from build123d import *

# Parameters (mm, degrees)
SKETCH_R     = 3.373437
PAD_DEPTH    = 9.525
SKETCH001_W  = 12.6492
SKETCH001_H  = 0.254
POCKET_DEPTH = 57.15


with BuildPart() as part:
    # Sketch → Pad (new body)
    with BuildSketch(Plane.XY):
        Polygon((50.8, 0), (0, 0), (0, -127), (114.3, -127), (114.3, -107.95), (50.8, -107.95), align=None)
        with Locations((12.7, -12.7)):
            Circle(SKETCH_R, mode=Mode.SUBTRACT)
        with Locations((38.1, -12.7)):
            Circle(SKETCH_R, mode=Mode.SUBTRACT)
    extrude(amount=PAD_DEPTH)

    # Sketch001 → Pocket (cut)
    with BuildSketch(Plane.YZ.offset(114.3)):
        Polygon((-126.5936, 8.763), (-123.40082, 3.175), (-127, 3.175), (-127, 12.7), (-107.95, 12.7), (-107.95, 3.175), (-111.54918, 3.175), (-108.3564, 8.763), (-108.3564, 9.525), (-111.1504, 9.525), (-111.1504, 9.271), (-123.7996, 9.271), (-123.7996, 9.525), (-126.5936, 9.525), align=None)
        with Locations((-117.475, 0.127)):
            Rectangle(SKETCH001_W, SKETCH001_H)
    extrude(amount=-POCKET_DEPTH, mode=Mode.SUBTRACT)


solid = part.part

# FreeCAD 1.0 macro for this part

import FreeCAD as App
import Part
import Sketcher

V = App.Vector
Q = App.Units.Quantity

doc = App.newDocument("Part")
body = doc.addObject("PartDesign::Body", "Body")

# Sketch on XY plane
sketch1 = body.newObject("Sketcher::SketchObject", "Sketch")
sketch1.AttachmentSupport = (doc.getObject("XY_Plane"), [""])
sketch1.MapMode = "FlatFace"
sketch1.addGeometry(Part.LineSegment(V(50.8, 0, 0), V(0, 0, 0)), False)
sketch1.addGeometry(Part.LineSegment(V(0, 0, 0), V(0, -127, 0)), False)
sketch1.addGeometry(Part.LineSegment(V(0, -127, 0), V(114.3, -127, 0)), False)
sketch1.addGeometry(Part.LineSegment(V(114.3, -127, 0), V(114.3, -107.95, 0)), False)
sketch1.addGeometry(Part.LineSegment(V(114.3, -107.95, 0), V(50.8, -107.95, 0)), False)
sketch1.addGeometry(Part.LineSegment(V(50.8, -107.95, 0), V(50.8, 0, 0)), False)
sketch1.addGeometry(Part.Circle(V(12.7, -12.7, 0), V(0, 0, 1), 3.373437), False)
sketch1.addGeometry(Part.Circle(V(38.1, -12.7, 0), V(0, 0, 1), 3.373437), False)
sketch1.addConstraint(Sketcher.Constraint("Coincident", 0, 2, 1, 1))
sketch1.addConstraint(Sketcher.Constraint("Coincident", 1, 2, 2, 1))
sketch1.addConstraint(Sketcher.Constraint("Coincident", 2, 2, 3, 1))
sketch1.addConstraint(Sketcher.Constraint("Coincident", 3, 2, 4, 1))
sketch1.addConstraint(Sketcher.Constraint("Coincident", 4, 2, 5, 1))
sketch1.addConstraint(Sketcher.Constraint("Coincident", 5, 2, 0, 1))
sketch1.addConstraint(Sketcher.Constraint("Horizontal", 0))
sketch1.addConstraint(Sketcher.Constraint("Vertical", 1))
sketch1.addConstraint(Sketcher.Constraint("Horizontal", 2))
sketch1.addConstraint(Sketcher.Constraint("Vertical", 3))
sketch1.addConstraint(Sketcher.Constraint("Horizontal", 4))
sketch1.addConstraint(Sketcher.Constraint("Vertical", 5))
sketch1.addConstraint(Sketcher.Constraint("Coincident", 0, 2, -1, 1))
sketch1.addConstraint(Sketcher.Constraint("Equal", 6, 7))
sketch1.addConstraint(Sketcher.Constraint("Horizontal", 6, 3, 7, 3))
sketch1.addConstraint(Sketcher.Constraint("DistanceX", 0, 2, 0, 1, Q("2 in")))
sketch1.addConstraint(Sketcher.Constraint("DistanceY", 1, 2, 1, 1, Q("5 in")))
sketch1.addConstraint(Sketcher.Constraint("Diameter", 6, Q("0.265625 in")))
sketch1.addConstraint(Sketcher.Constraint("DistanceX", 2, 1, 2, 2, Q("4.5 in")))
sketch1.addConstraint(Sketcher.Constraint("DistanceX", 6, 3, 7, 3, Q("1 in")))
sketch1.addConstraint(Sketcher.Constraint("DistanceX", 7, 3, 2, 2, Q("3 in")))
sketch1.addConstraint(Sketcher.Constraint("DistanceY", 3, 1, 3, 2, Q("0.75 in")))
sketch1.addConstraint(Sketcher.Constraint("DistanceY", 6, 3, -1, 1, Q("0.5 in")))
pad1 = body.newObject("PartDesign::Pad", "Pad")
pad1.Profile = sketch1
pad1.Length = Q("0.375 in")

# Sketch on YZ plane
sketch2 = body.newObject("Sketcher::SketchObject", "Sketch001")
sketch2.AttachmentSupport = (doc.getObject("YZ_Plane"), [""])
sketch2.MapMode = "FlatFace"
sketch2.AttachmentOffset = App.Placement(V(0, 0, 4.5 * 25.4), App.Rotation())
sketch2.addGeometry(Part.LineSegment(V(-123.40082, 3.175, 0), V(-126.5936, 8.763, 0)), False)
sketch2.addGeometry(Part.LineSegment(V(-126.5936, 8.763, 0), V(-126.5936, 9.525, 0)), False)
sketch2.addGeometry(Part.LineSegment(V(-126.5936, 9.525, 0), V(-123.7996, 9.525, 0)), False)
sketch2.addGeometry(Part.LineSegment(V(-123.7996, 9.525, 0), V(-123.7996, 9.271, 0)), False)
sketch2.addGeometry(Part.LineSegment(V(-123.7996, 9.271, 0), V(-111.1504, 9.271, 0)), False)
sketch2.addGeometry(Part.LineSegment(V(-111.1504, 9.271, 0), V(-111.1504, 9.525, 0)), False)
sketch2.addGeometry(Part.LineSegment(V(-111.1504, 9.525, 0), V(-108.3564, 9.525, 0)), False)
sketch2.addGeometry(Part.LineSegment(V(-108.3564, 9.525, 0), V(-108.3564, 8.763, 0)), False)
sketch2.addGeometry(Part.LineSegment(V(-108.3564, 8.763, 0), V(-111.54918, 3.175, 0)), False)
sketch2.addGeometry(Part.LineSegment(V(-111.54918, 3.175, 0), V(-107.95, 3.175, 0)), False)
sketch2.addGeometry(Part.LineSegment(V(-107.95, 3.175, 0), V(-107.95, 12.7, 0)), False)
sketch2.addGeometry(Part.LineSegment(V(-107.95, 12.7, 0), V(-127, 12.7, 0)), False)
sketch2.addGeometry(Part.LineSegment(V(-127, 12.7, 0), V(-127, 3.175, 0)), False)
sketch2.addGeometry(Part.LineSegment(V(-127, 3.175, 0), V(-123.40082, 3.175, 0)), False)
sketch2.addGeometry(Part.LineSegment(V(-123.7996, 0.254, 0), V(-123.7996, 0, 0)), False)
sketch2.addGeometry(Part.LineSegment(V(-123.7996, 0, 0), V(-111.1504, 0, 0)), False)
sketch2.addGeometry(Part.LineSegment(V(-111.1504, 0, 0), V(-111.1504, 0.254, 0)), False)
sketch2.addGeometry(Part.LineSegment(V(-111.1504, 0.254, 0), V(-123.7996, 0.254, 0)), False)
sketch2.addConstraint(Sketcher.Constraint("Coincident", 0, 2, 1, 1))
sketch2.addConstraint(Sketcher.Constraint("Coincident", 1, 2, 2, 1))
sketch2.addConstraint(Sketcher.Constraint("Coincident", 2, 2, 3, 1))
sketch2.addConstraint(Sketcher.Constraint("Coincident", 3, 2, 4, 1))
sketch2.addConstraint(Sketcher.Constraint("Coincident", 4, 2, 5, 1))
sketch2.addConstraint(Sketcher.Constraint("Coincident", 5, 2, 6, 1))
sketch2.addConstraint(Sketcher.Constraint("Coincident", 6, 2, 7, 1))
sketch2.addConstraint(Sketcher.Constraint("Coincident", 7, 2, 8, 1))
sketch2.addConstraint(Sketcher.Constraint("Coincident", 8, 2, 9, 1))
sketch2.addConstraint(Sketcher.Constraint("Coincident", 9, 2, 10, 1))
sketch2.addConstraint(Sketcher.Constraint("Coincident", 10, 2, 11, 1))
sketch2.addConstraint(Sketcher.Constraint("Coincident", 11, 2, 12, 1))
sketch2.addConstraint(Sketcher.Constraint("Coincident", 12, 2, 13, 1))
sketch2.addConstraint(Sketcher.Constraint("Coincident", 13, 2, 0, 1))
sketch2.addConstraint(Sketcher.Constraint("Coincident", 14, 2, 15, 1))
sketch2.addConstraint(Sketcher.Constraint("Coincident", 15, 2, 16, 1))
sketch2.addConstraint(Sketcher.Constraint("Coincident", 16, 2, 17, 1))
sketch2.addConstraint(Sketcher.Constraint("Coincident", 17, 2, 14, 1))
sketch2.addConstraint(Sketcher.Constraint("Vertical", 1))
sketch2.addConstraint(Sketcher.Constraint("Horizontal", 2))
sketch2.addConstraint(Sketcher.Constraint("Vertical", 3))
sketch2.addConstraint(Sketcher.Constraint("Horizontal", 4))
sketch2.addConstraint(Sketcher.Constraint("Vertical", 5))
sketch2.addConstraint(Sketcher.Constraint("Horizontal", 6))
sketch2.addConstraint(Sketcher.Constraint("Vertical", 7))
sketch2.addConstraint(Sketcher.Constraint("Horizontal", 9))
sketch2.addConstraint(Sketcher.Constraint("Vertical", 10))
sketch2.addConstraint(Sketcher.Constraint("Horizontal", 11))
sketch2.addConstraint(Sketcher.Constraint("Vertical", 12))
sketch2.addConstraint(Sketcher.Constraint("Horizontal", 13))
sketch2.addConstraint(Sketcher.Constraint("Vertical", 14))
sketch2.addConstraint(Sketcher.Constraint("Horizontal", 15))
sketch2.addConstraint(Sketcher.Constraint("Vertical", 16))
sketch2.addConstraint(Sketcher.Constraint("Horizontal", 17))
sketch2.addConstraint(Sketcher.Constraint("PointOnObject", 14, 2, -1))
sketch2.addConstraint(Sketcher.Constraint("Horizontal", 2, 2, 5, 2))
sketch2.addConstraint(Sketcher.Constraint("Horizontal", 0, 2, 7, 2))
sketch2.addConstraint(Sketcher.Constraint("Horizontal", 9, 2, 12, 2))
sketch2.addConstraint(Sketcher.Constraint("Vertical", 3, 2, 14, 2))
sketch2.addConstraint(Sketcher.Constraint("Vertical", 5, 2, 15, 2))
sketch2.addConstraint(Sketcher.Constraint("Equal", 2, 6))
sketch2.addConstraint(Sketcher.Constraint("Equal", 9, 13))
sketch2.addConstraint(Sketcher.Constraint("Equal", 5, 14))
sketch2.addConstraint(Sketcher.Constraint("Equal", 0, 8))
sketch2.addConstraint(Sketcher.Constraint("DistanceX", 11, 2, -1, 1, Q("5 in")))
sketch2.addConstraint(Sketcher.Constraint("DistanceX", 2, 1, 2, 2, Q("0.11 in")))
sketch2.addConstraint(Sketcher.Constraint("DistanceX", 11, 2, 11, 1, Q("0.75 in")))
sketch2.addConstraint(Sketcher.Constraint("DistanceY", 1, 1, 1, 2, Q("0.03 in")))
sketch2.addConstraint(Sketcher.Constraint("DistanceY", 3, 2, 3, 1, Q("0.01 in")))
sketch2.addConstraint(Sketcher.Constraint("DistanceY", -1, 1, 10, 2, Q("0.5 in")))
sketch2.addConstraint(Sketcher.Constraint("DistanceX", 4, 1, 4, 2, Q("0.498 in")))
sketch2.addConstraint(Sketcher.Constraint("DistanceY", 10, 1, 10, 2, Q("0.375 in")))
sketch2.addConstraint(Sketcher.Constraint("DistanceY", 8, 2, 4, 2, Q("0.24 in")))
sketch2.addConstraint(Sketcher.Constraint("DistanceX", 9, 1, 9, 2, Q("0.1417 in")))
pocket1 = body.newObject("PartDesign::Pocket", "Pocket")
pocket1.Profile = sketch2
pocket1.Length = Q("2.25 in")

doc.recompute()
